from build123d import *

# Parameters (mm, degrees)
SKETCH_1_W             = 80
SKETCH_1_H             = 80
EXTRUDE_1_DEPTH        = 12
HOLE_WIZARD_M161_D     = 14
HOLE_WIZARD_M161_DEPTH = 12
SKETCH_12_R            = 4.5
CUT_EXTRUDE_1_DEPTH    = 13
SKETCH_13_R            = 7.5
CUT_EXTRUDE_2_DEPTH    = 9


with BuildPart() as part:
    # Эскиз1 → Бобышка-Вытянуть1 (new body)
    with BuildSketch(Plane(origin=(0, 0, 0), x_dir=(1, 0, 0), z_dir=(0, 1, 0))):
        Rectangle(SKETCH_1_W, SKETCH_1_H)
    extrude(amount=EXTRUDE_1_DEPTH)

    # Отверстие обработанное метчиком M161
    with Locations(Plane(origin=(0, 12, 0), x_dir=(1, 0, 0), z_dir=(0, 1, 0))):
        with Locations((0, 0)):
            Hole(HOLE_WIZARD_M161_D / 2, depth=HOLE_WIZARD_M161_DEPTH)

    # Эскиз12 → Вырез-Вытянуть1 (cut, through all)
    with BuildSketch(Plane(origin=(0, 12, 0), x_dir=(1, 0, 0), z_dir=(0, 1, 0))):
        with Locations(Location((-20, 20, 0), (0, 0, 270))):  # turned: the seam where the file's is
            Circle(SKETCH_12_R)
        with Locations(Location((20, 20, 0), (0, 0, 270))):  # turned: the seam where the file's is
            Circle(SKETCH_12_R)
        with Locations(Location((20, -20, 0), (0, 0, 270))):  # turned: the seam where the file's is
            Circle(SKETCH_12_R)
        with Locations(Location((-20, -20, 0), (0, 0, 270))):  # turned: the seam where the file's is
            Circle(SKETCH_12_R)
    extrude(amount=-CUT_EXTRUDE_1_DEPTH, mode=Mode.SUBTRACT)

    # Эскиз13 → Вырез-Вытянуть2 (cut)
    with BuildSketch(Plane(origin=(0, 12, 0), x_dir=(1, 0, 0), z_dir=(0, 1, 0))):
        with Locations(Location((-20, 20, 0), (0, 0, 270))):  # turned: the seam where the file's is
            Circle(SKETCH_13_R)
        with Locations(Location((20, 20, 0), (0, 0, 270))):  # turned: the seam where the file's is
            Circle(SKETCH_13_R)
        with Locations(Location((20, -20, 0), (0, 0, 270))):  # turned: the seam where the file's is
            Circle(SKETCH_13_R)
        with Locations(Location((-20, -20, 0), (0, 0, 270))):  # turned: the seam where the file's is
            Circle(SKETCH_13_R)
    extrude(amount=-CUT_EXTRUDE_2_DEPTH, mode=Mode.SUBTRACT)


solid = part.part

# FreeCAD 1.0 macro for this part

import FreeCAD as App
import Part
import Sketcher
from FreeCAD import Vector
Q = App.Units.Quantity


def add_polygon(sketch, points):
    """Adds a closed chain of lines whose ends are joined by coincident constraints."""
    first, n = sketch.GeometryCount, len(points)
    for a, b in zip(points, points[1:] + points[:1]):
        sketch.addGeometry(Part.LineSegment(App.Vector(*a, 0), App.Vector(*b, 0)), False)
    for i in range(n):
        sketch.addConstraint(Sketcher.Constraint("Coincident", first + i, 2, first + (i + 1) % n, 1))

doc = App.newDocument("Part")
body = doc.addObject("PartDesign::Body", "Body")

sketch1 = doc.addObject("Sketcher::SketchObject", "Sketch")
body.addObject(sketch1)
sketch1.AttachmentSupport = (doc.XZ_Plane, [""])
sketch1.MapMode = "FlatFace"
add_polygon(sketch1, [(-40, -40), (-40, 40), (40, 40), (40, -40)])
sketch1.addConstraint(Sketcher.Constraint("Vertical", 0))
sketch1.addConstraint(Sketcher.Constraint("Horizontal", 1))
sketch1.addConstraint(Sketcher.Constraint("Vertical", 2))
sketch1.addConstraint(Sketcher.Constraint("Horizontal", 3))
sketch1.addConstraint(Sketcher.Constraint("Symmetric", 0, 2, 2, 2, -1, 1))
sketch1.addConstraint(Sketcher.Constraint("Equal", 3, 0))
sketch1.addConstraint(Sketcher.Constraint("DistanceX", 1, 1, 1, 2, Q("80 mm")))
pad1 = doc.addObject("PartDesign::Pad", "Pad")
body.addObject(pad1)
pad1.Profile = sketch1
pad1.Length = 12
pad1.Reversed = True

sketch2 = doc.addObject("Sketcher::SketchObject", "Sketch001")
body.addObject(sketch2)
sketch2.AttachmentSupport = (doc.XZ_Plane, [""])
sketch2.MapMode = "FlatFace"
sketch2.AttachmentOffset = App.Placement(Vector(0, 0, -12), App.Rotation())
sketch2.addGeometry(Part.Circle(Vector(0, 0, 0), Vector(0, 0, 1), 7), False)
sketch2.addConstraint(Sketcher.Constraint("Coincident", 0, 3, -1, 1))
sketch2.addConstraint(Sketcher.Constraint("Diameter", 0, Q("14 mm")))
doc.recompute()
hole = doc.addObject("PartDesign::Hole", "Hole")
body.addObject(hole)
hole.Profile = sketch2
hole.ThreadType = "None"
hole.Diameter = 14
hole.DepthType = "Dimension"
hole.Depth = 12
hole.DrillPoint = "Flat"
hole.Reversed = True

sketch3 = doc.addObject("Sketcher::SketchObject", "Sketch002")
body.addObject(sketch3)
sketch3.AttachmentSupport = (doc.XZ_Plane, [""])
sketch3.MapMode = "FlatFace"
sketch3.AttachmentOffset = App.Placement(Vector(0, 0, -12), App.Rotation())
sketch3.addGeometry(Part.Circle(Vector(-20, -20, 0), Vector(0, 0, 1), 4.5), False)
sketch3.addGeometry(Part.Circle(Vector(20, -20, 0), Vector(0, 0, 1), 4.5), False)
sketch3.addGeometry(Part.Circle(Vector(20, 20, 0), Vector(0, 0, 1), 4.5), False)
sketch3.addGeometry(Part.Circle(Vector(-20, 20, 0), Vector(0, 0, 1), 4.5), False)
sketch3.addConstraint(Sketcher.Constraint("Equal", 0, 1))
sketch3.addConstraint(Sketcher.Constraint("Equal", 1, 2))
sketch3.addConstraint(Sketcher.Constraint("Equal", 2, 3))
sketch3.addConstraint(Sketcher.Constraint("Symmetric", 0, 3, 2, 3, -1, 1))
sketch3.addConstraint(Sketcher.Constraint("Symmetric", 1, 3, 3, 3, -1, 1))
sketch3.addConstraint(Sketcher.Constraint("Symmetric", 0, 3, 1, 3, -2))
sketch3.addConstraint(Sketcher.Constraint("Diameter", 0, Q("9 mm")))
sketch3.addConstraint(Sketcher.Constraint("DistanceX", 0, 3, -1, 1, Q("20 mm")))
sketch3.addConstraint(Sketcher.Constraint("DistanceY", 0, 3, -1, 1, Q("20 mm")))
pocket1 = doc.addObject("PartDesign::Pocket", "Pocket")
body.addObject(pocket1)
pocket1.Profile = sketch3
pocket1.Type = "ThroughAll"
pocket1.Reversed = True

sketch4 = doc.addObject("Sketcher::SketchObject", "Sketch003")
body.addObject(sketch4)
sketch4.AttachmentSupport = (doc.XZ_Plane, [""])
sketch4.MapMode = "FlatFace"
sketch4.AttachmentOffset = App.Placement(Vector(0, 0, -12), App.Rotation())
sketch4.addGeometry(Part.Circle(Vector(-20, -20, 0), Vector(0, 0, 1), 8), False)
sketch4.addGeometry(Part.Circle(Vector(20, -20, 0), Vector(0, 0, 1), 8), False)
sketch4.addGeometry(Part.Circle(Vector(20, 20, 0), Vector(0, 0, 1), 8), False)
sketch4.addGeometry(Part.Circle(Vector(-20, 20, 0), Vector(0, 0, 1), 8), False)
sketch4.addConstraint(Sketcher.Constraint("Equal", 0, 1))
sketch4.addConstraint(Sketcher.Constraint("Equal", 1, 2))
sketch4.addConstraint(Sketcher.Constraint("Equal", 2, 3))
sketch4.addConstraint(Sketcher.Constraint("Symmetric", 0, 3, 2, 3, -1, 1))
sketch4.addConstraint(Sketcher.Constraint("Symmetric", 1, 3, 3, 3, -1, 1))
sketch4.addConstraint(Sketcher.Constraint("Symmetric", 0, 3, 1, 3, -2))
sketch4.addConstraint(Sketcher.Constraint("Diameter", 0, Q("15 mm")))
sketch4.addConstraint(Sketcher.Constraint("DistanceX", 0, 3, -1, 1, Q("20 mm")))
sketch4.addConstraint(Sketcher.Constraint("DistanceY", 0, 3, -1, 1, Q("20 mm")))
pocket2 = doc.addObject("PartDesign::Pocket", "Pocket001")
body.addObject(pocket2)
pocket2.Profile = sketch4
pocket2.Length = 9
pocket2.Reversed = True

doc.recompute()
